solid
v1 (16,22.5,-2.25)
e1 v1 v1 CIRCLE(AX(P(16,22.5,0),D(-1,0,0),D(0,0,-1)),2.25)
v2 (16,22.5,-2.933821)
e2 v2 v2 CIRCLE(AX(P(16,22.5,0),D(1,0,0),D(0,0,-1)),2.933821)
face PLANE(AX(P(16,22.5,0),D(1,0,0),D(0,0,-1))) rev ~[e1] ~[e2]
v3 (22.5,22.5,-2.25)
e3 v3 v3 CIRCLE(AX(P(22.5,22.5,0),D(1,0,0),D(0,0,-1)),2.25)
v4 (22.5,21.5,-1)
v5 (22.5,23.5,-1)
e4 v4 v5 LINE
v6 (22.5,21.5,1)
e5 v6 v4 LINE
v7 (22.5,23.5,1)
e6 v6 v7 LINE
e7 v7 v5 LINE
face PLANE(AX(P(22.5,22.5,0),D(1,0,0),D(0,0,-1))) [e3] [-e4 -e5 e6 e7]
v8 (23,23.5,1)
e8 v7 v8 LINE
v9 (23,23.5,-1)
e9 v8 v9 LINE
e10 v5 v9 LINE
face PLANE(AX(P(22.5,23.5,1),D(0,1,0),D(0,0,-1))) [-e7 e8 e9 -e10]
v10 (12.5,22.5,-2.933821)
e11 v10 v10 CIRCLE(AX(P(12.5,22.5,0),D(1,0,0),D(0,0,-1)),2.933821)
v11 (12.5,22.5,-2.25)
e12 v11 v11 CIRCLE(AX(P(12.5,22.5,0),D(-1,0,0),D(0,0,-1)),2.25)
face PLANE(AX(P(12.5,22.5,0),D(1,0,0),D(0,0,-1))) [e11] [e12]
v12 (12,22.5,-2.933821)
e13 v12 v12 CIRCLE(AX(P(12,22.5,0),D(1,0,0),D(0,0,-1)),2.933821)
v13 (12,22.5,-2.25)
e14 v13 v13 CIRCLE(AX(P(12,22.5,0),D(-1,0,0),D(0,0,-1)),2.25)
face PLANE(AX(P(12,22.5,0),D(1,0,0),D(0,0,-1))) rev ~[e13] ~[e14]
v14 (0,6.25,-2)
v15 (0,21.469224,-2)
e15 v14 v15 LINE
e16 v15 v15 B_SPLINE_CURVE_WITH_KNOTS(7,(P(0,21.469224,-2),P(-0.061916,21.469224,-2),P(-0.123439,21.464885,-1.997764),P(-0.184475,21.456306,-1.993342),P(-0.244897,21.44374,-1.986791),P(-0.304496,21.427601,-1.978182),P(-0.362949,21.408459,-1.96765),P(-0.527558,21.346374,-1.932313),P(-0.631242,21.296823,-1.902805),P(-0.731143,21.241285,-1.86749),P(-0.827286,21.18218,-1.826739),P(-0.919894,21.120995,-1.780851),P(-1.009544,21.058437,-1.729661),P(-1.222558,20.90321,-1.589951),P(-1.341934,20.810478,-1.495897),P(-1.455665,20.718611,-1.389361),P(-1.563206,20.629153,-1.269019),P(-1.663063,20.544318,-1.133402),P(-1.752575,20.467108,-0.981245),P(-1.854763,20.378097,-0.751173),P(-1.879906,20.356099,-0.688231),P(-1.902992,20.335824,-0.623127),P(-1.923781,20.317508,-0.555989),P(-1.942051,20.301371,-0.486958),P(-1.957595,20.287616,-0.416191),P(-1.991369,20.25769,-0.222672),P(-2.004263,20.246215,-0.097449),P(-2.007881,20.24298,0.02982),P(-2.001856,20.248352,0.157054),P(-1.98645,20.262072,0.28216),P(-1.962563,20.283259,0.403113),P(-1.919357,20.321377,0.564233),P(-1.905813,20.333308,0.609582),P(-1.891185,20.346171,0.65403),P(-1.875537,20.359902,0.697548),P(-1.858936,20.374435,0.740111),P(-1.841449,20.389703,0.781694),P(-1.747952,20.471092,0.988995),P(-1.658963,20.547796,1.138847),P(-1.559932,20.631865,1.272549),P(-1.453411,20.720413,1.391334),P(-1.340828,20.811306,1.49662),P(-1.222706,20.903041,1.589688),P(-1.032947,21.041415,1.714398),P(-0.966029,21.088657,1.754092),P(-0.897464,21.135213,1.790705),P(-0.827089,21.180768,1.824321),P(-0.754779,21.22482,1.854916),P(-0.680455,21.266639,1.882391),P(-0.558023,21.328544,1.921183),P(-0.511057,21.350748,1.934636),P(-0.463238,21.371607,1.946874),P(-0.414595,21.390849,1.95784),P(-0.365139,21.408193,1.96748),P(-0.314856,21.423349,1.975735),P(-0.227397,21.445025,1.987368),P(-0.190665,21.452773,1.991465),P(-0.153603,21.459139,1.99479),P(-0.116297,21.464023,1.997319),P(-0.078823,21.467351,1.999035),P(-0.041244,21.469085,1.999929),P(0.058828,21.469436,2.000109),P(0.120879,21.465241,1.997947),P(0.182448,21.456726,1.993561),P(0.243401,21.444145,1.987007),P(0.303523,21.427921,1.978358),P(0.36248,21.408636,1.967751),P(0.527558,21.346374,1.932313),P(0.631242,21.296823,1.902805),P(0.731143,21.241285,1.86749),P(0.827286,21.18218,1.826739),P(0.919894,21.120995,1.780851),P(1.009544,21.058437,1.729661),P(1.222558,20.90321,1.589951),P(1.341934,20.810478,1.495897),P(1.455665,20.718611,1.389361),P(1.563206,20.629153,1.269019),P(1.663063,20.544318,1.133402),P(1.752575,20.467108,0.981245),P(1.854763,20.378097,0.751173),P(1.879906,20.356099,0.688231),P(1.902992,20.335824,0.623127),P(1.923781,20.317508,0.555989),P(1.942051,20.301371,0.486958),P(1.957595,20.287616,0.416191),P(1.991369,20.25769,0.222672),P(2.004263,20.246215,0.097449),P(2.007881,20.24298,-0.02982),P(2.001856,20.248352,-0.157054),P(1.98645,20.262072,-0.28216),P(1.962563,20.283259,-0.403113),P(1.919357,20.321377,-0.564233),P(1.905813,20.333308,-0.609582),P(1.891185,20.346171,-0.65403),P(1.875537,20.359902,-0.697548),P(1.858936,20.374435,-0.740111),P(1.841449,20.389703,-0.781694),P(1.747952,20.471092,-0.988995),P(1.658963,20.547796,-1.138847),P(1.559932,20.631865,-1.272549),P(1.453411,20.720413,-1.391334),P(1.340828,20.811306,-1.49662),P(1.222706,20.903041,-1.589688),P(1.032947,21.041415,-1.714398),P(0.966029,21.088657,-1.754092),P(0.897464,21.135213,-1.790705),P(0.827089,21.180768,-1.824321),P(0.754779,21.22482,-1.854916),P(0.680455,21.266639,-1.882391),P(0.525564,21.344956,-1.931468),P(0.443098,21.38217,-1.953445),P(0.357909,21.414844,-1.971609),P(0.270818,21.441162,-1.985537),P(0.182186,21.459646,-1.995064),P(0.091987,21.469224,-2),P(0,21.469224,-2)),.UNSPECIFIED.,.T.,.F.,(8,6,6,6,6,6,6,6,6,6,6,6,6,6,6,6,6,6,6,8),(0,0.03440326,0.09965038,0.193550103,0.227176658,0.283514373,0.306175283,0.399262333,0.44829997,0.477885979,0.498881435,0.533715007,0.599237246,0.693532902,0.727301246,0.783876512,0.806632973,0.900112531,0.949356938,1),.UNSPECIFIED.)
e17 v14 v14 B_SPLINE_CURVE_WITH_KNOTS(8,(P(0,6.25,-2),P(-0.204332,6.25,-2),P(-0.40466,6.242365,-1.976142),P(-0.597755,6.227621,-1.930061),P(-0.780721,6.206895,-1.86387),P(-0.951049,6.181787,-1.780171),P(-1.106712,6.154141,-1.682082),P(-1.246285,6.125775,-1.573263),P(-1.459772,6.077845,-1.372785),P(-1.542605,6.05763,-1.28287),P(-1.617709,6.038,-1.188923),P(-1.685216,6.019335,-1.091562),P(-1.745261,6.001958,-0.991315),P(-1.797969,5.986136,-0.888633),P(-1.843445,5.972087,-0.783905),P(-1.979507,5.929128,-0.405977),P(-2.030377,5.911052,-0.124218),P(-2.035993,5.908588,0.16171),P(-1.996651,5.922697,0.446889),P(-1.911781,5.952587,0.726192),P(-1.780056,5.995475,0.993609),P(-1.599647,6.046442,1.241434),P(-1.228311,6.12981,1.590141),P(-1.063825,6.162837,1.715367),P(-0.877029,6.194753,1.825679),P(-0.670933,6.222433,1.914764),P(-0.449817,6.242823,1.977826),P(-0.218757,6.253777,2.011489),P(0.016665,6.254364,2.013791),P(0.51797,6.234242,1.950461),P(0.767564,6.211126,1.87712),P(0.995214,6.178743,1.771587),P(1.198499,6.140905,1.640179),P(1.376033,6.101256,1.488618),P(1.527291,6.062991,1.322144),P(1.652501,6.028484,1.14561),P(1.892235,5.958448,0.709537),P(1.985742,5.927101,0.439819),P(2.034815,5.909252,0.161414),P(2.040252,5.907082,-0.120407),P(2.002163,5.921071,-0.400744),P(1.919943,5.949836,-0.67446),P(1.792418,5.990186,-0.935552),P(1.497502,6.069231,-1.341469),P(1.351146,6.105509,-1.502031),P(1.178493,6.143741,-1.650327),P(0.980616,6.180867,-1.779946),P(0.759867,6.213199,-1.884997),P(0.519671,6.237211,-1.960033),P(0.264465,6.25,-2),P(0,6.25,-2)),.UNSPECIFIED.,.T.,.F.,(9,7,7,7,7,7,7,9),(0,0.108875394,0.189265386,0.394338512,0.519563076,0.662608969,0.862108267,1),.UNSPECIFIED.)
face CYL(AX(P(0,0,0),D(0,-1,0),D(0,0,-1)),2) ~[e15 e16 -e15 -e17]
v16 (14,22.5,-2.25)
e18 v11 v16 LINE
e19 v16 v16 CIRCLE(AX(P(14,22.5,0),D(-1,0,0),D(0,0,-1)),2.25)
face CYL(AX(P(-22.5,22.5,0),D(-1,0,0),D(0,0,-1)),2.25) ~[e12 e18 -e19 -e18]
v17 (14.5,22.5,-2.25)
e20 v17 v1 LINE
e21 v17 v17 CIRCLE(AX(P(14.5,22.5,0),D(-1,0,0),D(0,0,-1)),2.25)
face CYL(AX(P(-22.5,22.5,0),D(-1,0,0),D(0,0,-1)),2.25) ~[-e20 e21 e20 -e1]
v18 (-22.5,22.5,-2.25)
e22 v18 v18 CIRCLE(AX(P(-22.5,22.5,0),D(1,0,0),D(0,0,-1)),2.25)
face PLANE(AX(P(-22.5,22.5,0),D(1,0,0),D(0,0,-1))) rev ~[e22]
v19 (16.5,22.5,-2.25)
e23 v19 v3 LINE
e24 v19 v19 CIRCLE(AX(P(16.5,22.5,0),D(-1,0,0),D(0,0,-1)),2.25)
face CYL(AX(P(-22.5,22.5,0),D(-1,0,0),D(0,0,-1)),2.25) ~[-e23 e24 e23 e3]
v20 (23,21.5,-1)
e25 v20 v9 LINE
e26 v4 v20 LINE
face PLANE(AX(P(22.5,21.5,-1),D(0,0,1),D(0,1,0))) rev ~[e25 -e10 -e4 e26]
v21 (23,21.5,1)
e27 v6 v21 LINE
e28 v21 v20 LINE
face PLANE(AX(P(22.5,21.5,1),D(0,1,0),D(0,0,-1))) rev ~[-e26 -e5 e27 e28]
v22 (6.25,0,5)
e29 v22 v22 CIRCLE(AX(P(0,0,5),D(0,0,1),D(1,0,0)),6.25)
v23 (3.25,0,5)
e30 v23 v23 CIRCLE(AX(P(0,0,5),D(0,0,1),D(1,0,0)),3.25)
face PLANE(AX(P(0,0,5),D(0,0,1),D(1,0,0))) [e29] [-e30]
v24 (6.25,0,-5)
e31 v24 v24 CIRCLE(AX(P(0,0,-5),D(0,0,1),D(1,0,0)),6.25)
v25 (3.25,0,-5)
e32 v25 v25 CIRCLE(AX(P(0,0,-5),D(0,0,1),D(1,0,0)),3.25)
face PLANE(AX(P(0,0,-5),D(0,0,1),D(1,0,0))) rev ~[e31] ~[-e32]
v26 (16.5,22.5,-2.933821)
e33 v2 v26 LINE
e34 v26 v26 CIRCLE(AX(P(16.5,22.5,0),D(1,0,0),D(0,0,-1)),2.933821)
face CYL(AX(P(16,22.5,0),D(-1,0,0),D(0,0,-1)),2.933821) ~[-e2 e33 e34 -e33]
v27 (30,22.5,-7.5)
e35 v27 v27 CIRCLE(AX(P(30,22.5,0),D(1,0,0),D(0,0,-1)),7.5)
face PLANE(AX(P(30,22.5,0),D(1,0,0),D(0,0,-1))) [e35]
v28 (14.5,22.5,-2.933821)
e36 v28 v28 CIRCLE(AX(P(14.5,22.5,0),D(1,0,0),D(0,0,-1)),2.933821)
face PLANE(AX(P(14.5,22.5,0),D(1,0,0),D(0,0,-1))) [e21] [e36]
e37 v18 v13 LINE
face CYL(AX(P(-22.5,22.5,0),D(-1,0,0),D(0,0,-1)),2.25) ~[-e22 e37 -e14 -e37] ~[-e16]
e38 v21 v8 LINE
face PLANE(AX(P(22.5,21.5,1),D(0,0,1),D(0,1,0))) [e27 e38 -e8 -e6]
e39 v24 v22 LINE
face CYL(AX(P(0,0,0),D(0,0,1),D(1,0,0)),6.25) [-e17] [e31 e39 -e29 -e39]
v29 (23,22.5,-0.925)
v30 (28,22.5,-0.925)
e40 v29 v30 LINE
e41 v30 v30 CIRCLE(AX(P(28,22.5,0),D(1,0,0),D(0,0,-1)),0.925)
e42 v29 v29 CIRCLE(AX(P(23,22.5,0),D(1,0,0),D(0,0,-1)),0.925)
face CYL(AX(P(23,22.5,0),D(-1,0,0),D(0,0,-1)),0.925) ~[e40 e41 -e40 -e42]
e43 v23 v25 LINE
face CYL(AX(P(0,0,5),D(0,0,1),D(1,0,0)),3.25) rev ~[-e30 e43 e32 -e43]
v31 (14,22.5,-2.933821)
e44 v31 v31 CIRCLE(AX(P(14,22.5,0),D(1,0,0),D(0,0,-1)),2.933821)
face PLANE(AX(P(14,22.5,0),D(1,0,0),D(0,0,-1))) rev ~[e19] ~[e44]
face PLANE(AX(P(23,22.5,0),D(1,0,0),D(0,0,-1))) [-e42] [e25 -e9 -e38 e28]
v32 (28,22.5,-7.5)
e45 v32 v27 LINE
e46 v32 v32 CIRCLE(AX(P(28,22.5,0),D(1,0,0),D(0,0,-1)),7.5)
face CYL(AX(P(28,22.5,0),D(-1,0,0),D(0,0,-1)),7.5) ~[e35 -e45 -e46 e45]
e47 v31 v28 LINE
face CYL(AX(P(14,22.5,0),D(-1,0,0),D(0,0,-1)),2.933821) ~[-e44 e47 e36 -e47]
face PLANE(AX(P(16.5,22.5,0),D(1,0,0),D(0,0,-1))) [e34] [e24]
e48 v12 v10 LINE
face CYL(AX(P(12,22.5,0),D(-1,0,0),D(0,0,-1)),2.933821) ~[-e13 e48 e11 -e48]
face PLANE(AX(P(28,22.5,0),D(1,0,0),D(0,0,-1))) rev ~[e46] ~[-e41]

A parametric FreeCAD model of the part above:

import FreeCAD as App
import Part
import Sketcher
from FreeCAD import Vector
Q = App.Units.Quantity


def add_polygon(sketch, points):
    """Adds a closed chain of lines whose ends are joined by coincident constraints."""
    first, n = sketch.GeometryCount, len(points)
    for a, b in zip(points, points[1:] + points[:1]):
        sketch.addGeometry(Part.LineSegment(App.Vector(*a, 0), App.Vector(*b, 0)), False)
    for i in range(n):
        sketch.addConstraint(Sketcher.Constraint("Coincident", first + i, 2, first + (i + 1) % n, 1))

doc = App.newDocument("Part")
params = doc.addObject("Spreadsheet::Sheet", "Params")
for row, (alias, value) in enumerate([
    ("sketch1_diameter", "12.5 mm"),
    ("pad1_length", "10 mm"),
    ("sketch2_diameter", "4 mm"),
    ("pad2_length", "22.5 mm"),
    ("sketch3_diameter", "4.5 mm"),
    ("pad3_length", "22.5 mm"),
    ("pad3_length2", "22.5 mm"),
    ("pad4_length", "0.5 mm"),
    ("linearpattern_pitch", "2 mm"),
    ("sketch5_width", "2 mm"),
    ("pad5_length", "0.5 mm"),
    ("sketch6_diameter", "6.5 mm"),
    ("sketch7_diameter", "1.85 mm"),
    ("pad6_length", "5 mm"),
    ("sketch8_diameter", "15 mm"),
    ("pad7_length", "2 mm"),
], start=1):
    params.set(f"A{row}", alias)
    params.set(f"B{row}", "=" + value)
    params.setAlias(f"B{row}", alias)

body = doc.addObject("PartDesign::Body", "Body")

# Sketch on XY plane
sketch1 = body.newObject("Sketcher::SketchObject", "Sketch")
sketch1.AttachmentSupport = (doc.getObject("XY_Plane"), [""])
sketch1.MapMode = "FlatFace"
sketch1.addGeometry(Part.Circle(Vector(0, 0, 0), Vector(0, 0, 1), 6.25), False)
sketch1.addConstraint([
    Sketcher.Constraint("Coincident", 0, 3, -1, 1),
    Sketcher.Constraint("Diameter", 0, Q("12.5 mm")),
])
sketch1.setExpression("Constraints[1]", "Params.sketch1_diameter")
pad1 = body.newObject("PartDesign::Pad", "Pad")
pad1.Profile = sketch1
pad1.setExpression("Length", "Params.pad1_length")
pad1.Midplane = True

# Sketch on XZ plane
sketch2 = body.newObject("Sketcher::SketchObject", "Sketch001")
sketch2.AttachmentSupport = (doc.getObject("XZ_Plane"), [""])
sketch2.MapMode = "FlatFace"
sketch2.addGeometry(Part.Circle(Vector(0, 0, 0), Vector(0, 0, 1), 2), False)
sketch2.addConstraint([
    Sketcher.Constraint("Coincident", 0, 3, -1, 1),
    Sketcher.Constraint("Diameter", 0, Q("4 mm")),
])
sketch2.setExpression("Constraints[1]", "Params.sketch2_diameter")
pad2 = body.newObject("PartDesign::Pad", "Pad001")
pad2.Profile = sketch2
pad2.setExpression("Length", "Params.pad2_length")
pad2.Reversed = True

# Sketch on YZ plane
sketch3 = body.newObject("Sketcher::SketchObject", "Sketch002")
sketch3.AttachmentSupport = (doc.getObject("YZ_Plane"), [""])
sketch3.MapMode = "FlatFace"
sketch3.addGeometry(Part.Circle(Vector(22.5, 0, 0), Vector(0, 0, 1), 2.25), False)
sketch3.addConstraint([
    Sketcher.Constraint("PointOnObject", 0, 3, -1),
    Sketcher.Constraint("Diameter", 0, Q("4.5 mm")),
    Sketcher.Constraint("DistanceX", -1, 1, 0, 3, Q("22.5 mm")),
])
sketch3.setExpression("Constraints[1]", "Params.sketch3_diameter")
pad3 = body.newObject("PartDesign::Pad", "Pad002")
pad3.Profile = sketch3
pad3.Type = "TwoLengths"
pad3.setExpression("Length", "Params.pad3_length")
pad3.setExpression("Length2", "Params.pad3_length2")

# Sketch on YZ plane
sketch4 = body.newObject("Sketcher::SketchObject", "Sketch003")
sketch4.AttachmentSupport = (doc.getObject("YZ_Plane"), [""])
sketch4.MapMode = "FlatFace"
sketch4.AttachmentOffset = App.Placement(Vector(0, 0, 12), App.Rotation())
sketch4.addGeometry(Part.Circle(Vector(22.5, 0, 0), Vector(0, 0, 1), 2.933821), False)
sketch4.addConstraint([
    Sketcher.Constraint("PointOnObject", 0, 3, -1),
    Sketcher.Constraint("DistanceX", -1, 1, 0, 3, Q("22.5 mm")),
    Sketcher.Constraint("Diameter", 0, Q("5.867641 mm")),
])
pad4 = body.newObject("PartDesign::Pad", "Pad003")
pad4.Profile = sketch4
pad4.setExpression("Length", "Params.pad4_length")
doc.recompute()

linearpattern = body.newObject("PartDesign::LinearPattern", "LinearPattern")
linearpattern.Originals = [pad4]
linearpattern.Direction = (doc.getObject("X_Axis"), [""])
linearpattern.Mode = "offset"
linearpattern.setExpression("Offset", "Params.linearpattern_pitch")
linearpattern.Occurrences = 3
body.Tip = linearpattern

# Sketch on YZ plane
sketch5 = body.newObject("Sketcher::SketchObject", "Sketch004")
sketch5.AttachmentSupport = (doc.getObject("YZ_Plane"), [""])
sketch5.MapMode = "FlatFace"
sketch5.AttachmentOffset = App.Placement(Vector(0, 0, 22.5), App.Rotation())
add_polygon(sketch5, [(23.5, 1), (21.5, 1), (21.5, -1), (23.5, -1)])  # lines 0-3
sketch5.addConstraint([
    Sketcher.Constraint("Horizontal", 0),
    Sketcher.Constraint("Vertical", 1),
    Sketcher.Constraint("Horizontal", 2),
    Sketcher.Constraint("Vertical", 3),
    Sketcher.Constraint("Equal", 2, 1),
    Sketcher.Constraint("DistanceX", 0, 2, 0, 1, Q("2 mm")),
    Sketcher.Constraint("DistanceY", -1, 1, 0, 2, Q("1 mm")),
    Sketcher.Constraint("DistanceX", -1, 1, 0, 2, Q("21.5 mm")),
])
sketch5.setExpression("Constraints[9]", "Params.sketch5_width")
pad5 = body.newObject("PartDesign::Pad", "Pad004")
pad5.Profile = sketch5
pad5.setExpression("Length", "Params.pad5_length")

# Sketch on XY plane
sketch6 = body.newObject("Sketcher::SketchObject", "Sketch005")
sketch6.AttachmentSupport = (doc.getObject("XY_Plane"), [""])
sketch6.MapMode = "FlatFace"
sketch6.AttachmentOffset = App.Placement(Vector(0, 0, 5), App.Rotation())
sketch6.addGeometry(Part.Circle(Vector(0, 0, 0), Vector(0, 0, 1), 3.25), False)
sketch6.addConstraint([
    Sketcher.Constraint("Coincident", 0, 3, -1, 1),
    Sketcher.Constraint("Diameter", 0, Q("6.5 mm")),
])
sketch6.setExpression("Constraints[1]", "Params.sketch6_diameter")
pocket1 = body.newObject("PartDesign::Pocket", "Pocket")
pocket1.Profile = sketch6
pocket1.Type = "ThroughAll"

# Sketch on YZ plane
sketch7 = body.newObject("Sketcher::SketchObject", "Sketch006")
sketch7.AttachmentSupport = (doc.getObject("YZ_Plane"), [""])
sketch7.MapMode = "FlatFace"
sketch7.AttachmentOffset = App.Placement(Vector(0, 0, 23), App.Rotation())
sketch7.addGeometry(Part.Circle(Vector(22.5, 0, 0), Vector(0, 0, 1), 0.925), False)
sketch7.addConstraint([
    Sketcher.Constraint("PointOnObject", 0, 3, -1),
    Sketcher.Constraint("Diameter", 0, Q("1.85 mm")),
    Sketcher.Constraint("DistanceX", -1, 1, 0, 3, Q("22.5 mm")),
])
sketch7.setExpression("Constraints[1]", "Params.sketch7_diameter")
pad6 = body.newObject("PartDesign::Pad", "Pad005")
pad6.Profile = sketch7
pad6.setExpression("Length", "Params.pad6_length")

# Sketch on YZ plane
sketch8 = body.newObject("Sketcher::SketchObject", "Sketch007")
sketch8.AttachmentSupport = (doc.getObject("YZ_Plane"), [""])
sketch8.MapMode = "FlatFace"
sketch8.AttachmentOffset = App.Placement(Vector(0, 0, 28), App.Rotation())
sketch8.addGeometry(Part.Circle(Vector(22.5, 0, 0), Vector(0, 0, 1), 7.5), False)
sketch8.addConstraint([
    Sketcher.Constraint("PointOnObject", 0, 3, -1),
    Sketcher.Constraint("Diameter", 0, Q("15 mm")),
    Sketcher.Constraint("DistanceX", -1, 1, 0, 3, Q("22.5 mm")),
])
sketch8.setExpression("Constraints[1]", "Params.sketch8_diameter")
pad7 = body.newObject("PartDesign::Pad", "Pad006")
pad7.Profile = sketch8
pad7.setExpression("Length", "Params.pad7_length")

doc.recompute()
